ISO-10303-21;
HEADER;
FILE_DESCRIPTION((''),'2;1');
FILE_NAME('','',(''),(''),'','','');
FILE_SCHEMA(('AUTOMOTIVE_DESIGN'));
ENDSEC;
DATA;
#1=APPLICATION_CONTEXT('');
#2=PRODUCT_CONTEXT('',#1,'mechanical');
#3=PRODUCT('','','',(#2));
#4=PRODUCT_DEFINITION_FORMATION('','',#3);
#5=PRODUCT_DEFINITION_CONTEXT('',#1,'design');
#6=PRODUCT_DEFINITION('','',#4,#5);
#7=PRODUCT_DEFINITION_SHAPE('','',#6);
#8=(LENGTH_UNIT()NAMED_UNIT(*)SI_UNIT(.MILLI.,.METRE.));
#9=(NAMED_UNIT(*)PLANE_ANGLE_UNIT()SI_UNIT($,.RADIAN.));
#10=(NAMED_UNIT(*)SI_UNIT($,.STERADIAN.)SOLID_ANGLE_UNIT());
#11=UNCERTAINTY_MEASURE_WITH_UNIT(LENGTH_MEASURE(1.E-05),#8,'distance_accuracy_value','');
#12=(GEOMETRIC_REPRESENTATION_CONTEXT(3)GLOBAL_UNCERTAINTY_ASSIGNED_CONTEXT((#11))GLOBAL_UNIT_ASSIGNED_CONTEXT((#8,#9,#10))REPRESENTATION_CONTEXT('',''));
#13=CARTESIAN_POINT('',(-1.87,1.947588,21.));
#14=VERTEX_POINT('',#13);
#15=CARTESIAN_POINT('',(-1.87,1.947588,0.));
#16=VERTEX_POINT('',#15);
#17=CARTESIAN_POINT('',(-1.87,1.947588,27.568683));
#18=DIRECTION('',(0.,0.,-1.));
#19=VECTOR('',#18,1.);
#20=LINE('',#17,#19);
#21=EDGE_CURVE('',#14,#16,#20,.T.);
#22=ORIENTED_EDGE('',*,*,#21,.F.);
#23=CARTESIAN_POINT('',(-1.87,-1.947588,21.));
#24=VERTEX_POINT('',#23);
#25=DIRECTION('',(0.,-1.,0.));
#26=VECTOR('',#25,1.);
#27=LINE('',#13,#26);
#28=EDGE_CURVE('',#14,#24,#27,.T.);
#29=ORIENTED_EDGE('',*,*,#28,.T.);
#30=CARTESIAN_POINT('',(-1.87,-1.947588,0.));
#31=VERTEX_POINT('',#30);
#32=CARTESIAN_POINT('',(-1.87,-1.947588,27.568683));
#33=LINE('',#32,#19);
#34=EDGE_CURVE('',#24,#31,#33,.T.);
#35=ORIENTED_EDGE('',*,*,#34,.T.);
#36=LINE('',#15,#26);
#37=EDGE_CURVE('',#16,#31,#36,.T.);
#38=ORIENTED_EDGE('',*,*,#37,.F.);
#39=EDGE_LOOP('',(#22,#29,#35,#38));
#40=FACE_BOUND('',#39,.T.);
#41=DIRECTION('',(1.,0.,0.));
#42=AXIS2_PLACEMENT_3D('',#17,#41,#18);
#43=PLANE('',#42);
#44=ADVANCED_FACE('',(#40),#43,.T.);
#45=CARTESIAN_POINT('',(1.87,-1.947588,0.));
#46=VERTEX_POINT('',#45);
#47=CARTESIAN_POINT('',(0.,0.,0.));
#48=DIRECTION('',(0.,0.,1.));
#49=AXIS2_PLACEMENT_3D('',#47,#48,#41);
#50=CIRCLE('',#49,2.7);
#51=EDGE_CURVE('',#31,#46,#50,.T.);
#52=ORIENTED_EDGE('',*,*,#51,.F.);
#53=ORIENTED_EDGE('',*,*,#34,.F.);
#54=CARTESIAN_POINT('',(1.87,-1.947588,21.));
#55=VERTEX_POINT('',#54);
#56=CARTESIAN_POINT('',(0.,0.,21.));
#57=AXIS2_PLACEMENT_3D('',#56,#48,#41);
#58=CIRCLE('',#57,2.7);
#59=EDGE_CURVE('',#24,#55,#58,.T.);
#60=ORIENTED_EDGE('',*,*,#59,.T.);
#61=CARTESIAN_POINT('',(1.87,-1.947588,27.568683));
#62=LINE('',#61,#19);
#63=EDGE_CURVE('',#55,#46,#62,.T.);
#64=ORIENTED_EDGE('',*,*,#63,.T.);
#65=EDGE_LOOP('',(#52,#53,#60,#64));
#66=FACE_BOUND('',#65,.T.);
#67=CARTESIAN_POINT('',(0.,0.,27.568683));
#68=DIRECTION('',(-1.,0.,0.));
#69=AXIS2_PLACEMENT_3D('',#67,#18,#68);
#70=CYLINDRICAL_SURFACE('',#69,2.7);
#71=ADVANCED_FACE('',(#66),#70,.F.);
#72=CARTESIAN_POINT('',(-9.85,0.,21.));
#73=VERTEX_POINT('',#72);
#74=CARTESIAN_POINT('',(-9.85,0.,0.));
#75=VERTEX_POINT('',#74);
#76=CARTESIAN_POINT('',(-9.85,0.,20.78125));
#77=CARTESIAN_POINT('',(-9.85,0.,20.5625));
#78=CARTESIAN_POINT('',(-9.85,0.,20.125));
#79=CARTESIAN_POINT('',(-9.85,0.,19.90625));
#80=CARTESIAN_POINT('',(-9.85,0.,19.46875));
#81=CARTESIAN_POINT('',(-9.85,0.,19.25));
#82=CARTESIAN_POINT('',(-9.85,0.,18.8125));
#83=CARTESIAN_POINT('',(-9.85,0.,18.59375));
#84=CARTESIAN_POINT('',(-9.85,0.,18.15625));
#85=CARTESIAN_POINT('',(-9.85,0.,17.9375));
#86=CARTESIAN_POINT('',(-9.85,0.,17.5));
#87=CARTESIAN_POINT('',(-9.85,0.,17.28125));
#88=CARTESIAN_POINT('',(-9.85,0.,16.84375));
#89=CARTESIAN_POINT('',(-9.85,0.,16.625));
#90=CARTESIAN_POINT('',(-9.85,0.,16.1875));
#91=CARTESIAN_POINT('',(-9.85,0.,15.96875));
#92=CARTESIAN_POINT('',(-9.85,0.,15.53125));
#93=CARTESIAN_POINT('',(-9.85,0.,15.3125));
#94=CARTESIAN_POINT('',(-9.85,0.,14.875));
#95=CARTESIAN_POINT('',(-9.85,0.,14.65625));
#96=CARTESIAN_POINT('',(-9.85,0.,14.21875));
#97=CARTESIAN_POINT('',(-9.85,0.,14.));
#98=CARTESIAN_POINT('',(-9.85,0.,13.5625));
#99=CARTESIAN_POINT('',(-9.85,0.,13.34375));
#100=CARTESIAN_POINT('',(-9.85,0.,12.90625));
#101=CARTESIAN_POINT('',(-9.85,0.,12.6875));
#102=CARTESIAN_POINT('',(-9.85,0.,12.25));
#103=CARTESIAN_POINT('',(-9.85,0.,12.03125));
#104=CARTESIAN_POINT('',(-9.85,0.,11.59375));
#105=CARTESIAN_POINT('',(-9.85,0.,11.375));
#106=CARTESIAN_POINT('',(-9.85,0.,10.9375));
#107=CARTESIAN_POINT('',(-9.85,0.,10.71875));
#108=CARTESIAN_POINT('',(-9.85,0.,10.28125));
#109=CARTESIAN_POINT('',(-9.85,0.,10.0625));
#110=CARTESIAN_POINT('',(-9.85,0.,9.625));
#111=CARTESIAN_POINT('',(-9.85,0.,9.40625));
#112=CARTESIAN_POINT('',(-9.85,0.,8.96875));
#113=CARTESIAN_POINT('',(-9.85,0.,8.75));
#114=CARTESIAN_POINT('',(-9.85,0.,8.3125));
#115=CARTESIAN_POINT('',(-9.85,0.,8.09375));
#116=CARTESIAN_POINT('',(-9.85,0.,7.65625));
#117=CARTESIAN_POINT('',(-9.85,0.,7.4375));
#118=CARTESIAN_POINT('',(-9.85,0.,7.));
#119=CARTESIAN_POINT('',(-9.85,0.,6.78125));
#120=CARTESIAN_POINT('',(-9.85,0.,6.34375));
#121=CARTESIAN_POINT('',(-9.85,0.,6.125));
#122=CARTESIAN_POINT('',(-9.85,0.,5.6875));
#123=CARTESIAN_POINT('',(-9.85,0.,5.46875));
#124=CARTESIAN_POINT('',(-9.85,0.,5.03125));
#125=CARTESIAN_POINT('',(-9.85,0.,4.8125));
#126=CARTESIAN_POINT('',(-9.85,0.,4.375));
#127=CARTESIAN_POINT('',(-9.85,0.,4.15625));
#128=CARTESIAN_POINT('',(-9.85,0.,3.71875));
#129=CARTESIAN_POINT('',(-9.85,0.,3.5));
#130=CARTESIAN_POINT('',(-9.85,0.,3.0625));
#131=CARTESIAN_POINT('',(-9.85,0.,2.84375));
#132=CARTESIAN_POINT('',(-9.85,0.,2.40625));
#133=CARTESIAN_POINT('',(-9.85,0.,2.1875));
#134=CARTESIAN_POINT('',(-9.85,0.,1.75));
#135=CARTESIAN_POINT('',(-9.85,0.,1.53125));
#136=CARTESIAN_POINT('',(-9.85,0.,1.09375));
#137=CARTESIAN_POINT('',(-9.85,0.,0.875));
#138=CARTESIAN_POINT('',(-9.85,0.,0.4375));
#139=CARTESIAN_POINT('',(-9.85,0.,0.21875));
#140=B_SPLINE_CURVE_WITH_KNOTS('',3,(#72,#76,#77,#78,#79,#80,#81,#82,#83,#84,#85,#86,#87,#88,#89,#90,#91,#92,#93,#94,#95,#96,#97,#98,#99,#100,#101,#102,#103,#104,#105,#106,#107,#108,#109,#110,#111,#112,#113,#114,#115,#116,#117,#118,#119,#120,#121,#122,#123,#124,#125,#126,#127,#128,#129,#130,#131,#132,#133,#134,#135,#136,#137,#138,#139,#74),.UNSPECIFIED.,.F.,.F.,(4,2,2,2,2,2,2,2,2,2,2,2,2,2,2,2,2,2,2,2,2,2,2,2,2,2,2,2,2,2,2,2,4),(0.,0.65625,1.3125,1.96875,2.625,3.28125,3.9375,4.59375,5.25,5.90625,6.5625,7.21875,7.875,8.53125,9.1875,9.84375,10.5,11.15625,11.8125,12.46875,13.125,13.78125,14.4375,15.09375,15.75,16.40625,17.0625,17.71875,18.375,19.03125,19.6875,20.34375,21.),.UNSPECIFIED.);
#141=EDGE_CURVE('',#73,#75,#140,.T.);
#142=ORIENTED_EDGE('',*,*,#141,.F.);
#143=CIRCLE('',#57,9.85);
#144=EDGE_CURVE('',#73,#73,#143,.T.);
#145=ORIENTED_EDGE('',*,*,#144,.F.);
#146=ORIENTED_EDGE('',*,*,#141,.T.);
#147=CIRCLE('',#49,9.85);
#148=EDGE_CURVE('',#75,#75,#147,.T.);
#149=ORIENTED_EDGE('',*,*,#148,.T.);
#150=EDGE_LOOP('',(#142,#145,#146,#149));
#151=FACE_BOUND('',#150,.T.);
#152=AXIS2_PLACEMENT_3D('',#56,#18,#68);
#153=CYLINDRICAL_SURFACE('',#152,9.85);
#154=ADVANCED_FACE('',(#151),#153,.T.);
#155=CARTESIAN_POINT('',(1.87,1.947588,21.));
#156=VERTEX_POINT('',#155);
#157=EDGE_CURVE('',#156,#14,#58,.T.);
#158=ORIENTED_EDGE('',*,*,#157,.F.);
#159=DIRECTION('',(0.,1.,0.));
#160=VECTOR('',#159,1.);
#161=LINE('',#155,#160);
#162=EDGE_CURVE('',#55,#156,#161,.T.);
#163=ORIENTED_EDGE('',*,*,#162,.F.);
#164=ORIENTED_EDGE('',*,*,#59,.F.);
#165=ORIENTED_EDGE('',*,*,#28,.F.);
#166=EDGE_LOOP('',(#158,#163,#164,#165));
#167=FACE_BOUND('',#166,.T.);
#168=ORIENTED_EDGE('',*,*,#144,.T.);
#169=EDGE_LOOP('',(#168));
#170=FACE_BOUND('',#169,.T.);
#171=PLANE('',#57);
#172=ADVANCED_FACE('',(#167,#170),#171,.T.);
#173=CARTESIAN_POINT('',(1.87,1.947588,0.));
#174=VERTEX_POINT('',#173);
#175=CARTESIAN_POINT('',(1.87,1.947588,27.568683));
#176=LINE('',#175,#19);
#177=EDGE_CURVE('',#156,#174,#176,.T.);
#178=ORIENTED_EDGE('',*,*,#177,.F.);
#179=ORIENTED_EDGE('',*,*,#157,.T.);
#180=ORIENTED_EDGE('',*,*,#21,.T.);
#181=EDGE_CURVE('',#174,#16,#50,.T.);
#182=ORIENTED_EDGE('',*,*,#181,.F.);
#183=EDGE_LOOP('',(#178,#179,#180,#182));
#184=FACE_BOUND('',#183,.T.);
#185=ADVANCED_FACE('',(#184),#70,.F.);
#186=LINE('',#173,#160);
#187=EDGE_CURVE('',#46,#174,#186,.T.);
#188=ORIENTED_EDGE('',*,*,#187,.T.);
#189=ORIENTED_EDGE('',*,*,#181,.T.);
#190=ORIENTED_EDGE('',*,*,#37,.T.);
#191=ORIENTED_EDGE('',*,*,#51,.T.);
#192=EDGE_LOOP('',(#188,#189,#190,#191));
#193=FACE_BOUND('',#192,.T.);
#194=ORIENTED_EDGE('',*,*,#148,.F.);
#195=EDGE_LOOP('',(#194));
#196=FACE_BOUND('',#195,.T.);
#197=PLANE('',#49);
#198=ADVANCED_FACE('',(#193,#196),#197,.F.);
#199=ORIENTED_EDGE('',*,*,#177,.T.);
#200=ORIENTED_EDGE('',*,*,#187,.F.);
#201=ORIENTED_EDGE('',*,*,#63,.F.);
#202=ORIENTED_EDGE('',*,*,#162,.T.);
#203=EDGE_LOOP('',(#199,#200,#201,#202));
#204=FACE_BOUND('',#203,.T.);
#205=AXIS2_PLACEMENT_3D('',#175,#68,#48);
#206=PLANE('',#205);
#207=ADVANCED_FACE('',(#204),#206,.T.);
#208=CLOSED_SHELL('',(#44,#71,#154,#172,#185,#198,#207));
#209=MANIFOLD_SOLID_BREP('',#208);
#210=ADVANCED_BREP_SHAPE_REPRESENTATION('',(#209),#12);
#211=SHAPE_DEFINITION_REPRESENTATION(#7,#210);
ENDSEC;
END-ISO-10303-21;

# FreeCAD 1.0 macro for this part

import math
import FreeCAD as App
import Part
import Sketcher

doc = App.newDocument("Part")
body = doc.addObject("PartDesign::Body", "Body")

sketch1 = body.newObject("Sketcher::SketchObject", "Sketch")
sketch1.AttachmentSupport = (doc.getObject("XY_Plane"), [""])
sketch1.MapMode = "FlatFace"
sketch1.addGeometry(Part.Circle(App.Vector(0, 0, 0), App.Vector(0, 0, 1), 10), False)
sketch1.addConstraint([
    Sketcher.Constraint("Coincident", 0, 3, -1, 1),
    Sketcher.Constraint("Diameter", 0, 19.7),
])
pad1 = body.newObject("PartDesign::Pad", "Pad")
pad1.Profile = sketch1
pad1.Length = 21

sketch2 = body.newObject("Sketcher::SketchObject", "Sketch001")
sketch2.AttachmentSupport = (doc.getObject("XY_Plane"), [""])
sketch2.MapMode = "FlatFace"
sketch2.addGeometry([
    Part.LineSegment(App.Vector(-1.9, 1.9, 0), App.Vector(-1.9, -1.9, 0)),
    Part.ArcOfCircle(Part.Circle(App.Vector(0, 0, 0), App.Vector(0, 0, 1), 2.7), math.radians(-134), math.radians(-46)),
    Part.LineSegment(App.Vector(1.9, -1.9, 0), App.Vector(1.9, 1.9, 0)),
    Part.ArcOfCircle(Part.Circle(App.Vector(0, 0, 0), App.Vector(0, 0, 1), 2.7), math.radians(46), math.radians(134)),
], False)
sketch2.addConstraint([
    Sketcher.Constraint("Coincident", 0, 2, 1, 1),
    Sketcher.Constraint("Coincident", 1, 2, 2, 1),
    Sketcher.Constraint("Coincident", 2, 2, 3, 1),
    Sketcher.Constraint("Coincident", 3, 2, 0, 1),
    Sketcher.Constraint("Vertical", 0),
    Sketcher.Constraint("Vertical", 2),
    Sketcher.Constraint("Coincident", 1, 3, -1, 1),
    Sketcher.Constraint("Coincident", 3, 3, -1, 1),
    Sketcher.Constraint("Equal", 1, 3),
    Sketcher.Constraint("Horizontal", 0, 2, 1, 2),
    Sketcher.Constraint("Radius", 1, 2.7),
    Sketcher.Constraint("DistanceX", 0, 2, -1, 1, 1.87),
])
pocket1 = body.newObject("PartDesign::Pocket", "Pocket")
pocket1.Profile = sketch2
pocket1.Length = 21
pocket1.Reversed = True

doc.recompute()
